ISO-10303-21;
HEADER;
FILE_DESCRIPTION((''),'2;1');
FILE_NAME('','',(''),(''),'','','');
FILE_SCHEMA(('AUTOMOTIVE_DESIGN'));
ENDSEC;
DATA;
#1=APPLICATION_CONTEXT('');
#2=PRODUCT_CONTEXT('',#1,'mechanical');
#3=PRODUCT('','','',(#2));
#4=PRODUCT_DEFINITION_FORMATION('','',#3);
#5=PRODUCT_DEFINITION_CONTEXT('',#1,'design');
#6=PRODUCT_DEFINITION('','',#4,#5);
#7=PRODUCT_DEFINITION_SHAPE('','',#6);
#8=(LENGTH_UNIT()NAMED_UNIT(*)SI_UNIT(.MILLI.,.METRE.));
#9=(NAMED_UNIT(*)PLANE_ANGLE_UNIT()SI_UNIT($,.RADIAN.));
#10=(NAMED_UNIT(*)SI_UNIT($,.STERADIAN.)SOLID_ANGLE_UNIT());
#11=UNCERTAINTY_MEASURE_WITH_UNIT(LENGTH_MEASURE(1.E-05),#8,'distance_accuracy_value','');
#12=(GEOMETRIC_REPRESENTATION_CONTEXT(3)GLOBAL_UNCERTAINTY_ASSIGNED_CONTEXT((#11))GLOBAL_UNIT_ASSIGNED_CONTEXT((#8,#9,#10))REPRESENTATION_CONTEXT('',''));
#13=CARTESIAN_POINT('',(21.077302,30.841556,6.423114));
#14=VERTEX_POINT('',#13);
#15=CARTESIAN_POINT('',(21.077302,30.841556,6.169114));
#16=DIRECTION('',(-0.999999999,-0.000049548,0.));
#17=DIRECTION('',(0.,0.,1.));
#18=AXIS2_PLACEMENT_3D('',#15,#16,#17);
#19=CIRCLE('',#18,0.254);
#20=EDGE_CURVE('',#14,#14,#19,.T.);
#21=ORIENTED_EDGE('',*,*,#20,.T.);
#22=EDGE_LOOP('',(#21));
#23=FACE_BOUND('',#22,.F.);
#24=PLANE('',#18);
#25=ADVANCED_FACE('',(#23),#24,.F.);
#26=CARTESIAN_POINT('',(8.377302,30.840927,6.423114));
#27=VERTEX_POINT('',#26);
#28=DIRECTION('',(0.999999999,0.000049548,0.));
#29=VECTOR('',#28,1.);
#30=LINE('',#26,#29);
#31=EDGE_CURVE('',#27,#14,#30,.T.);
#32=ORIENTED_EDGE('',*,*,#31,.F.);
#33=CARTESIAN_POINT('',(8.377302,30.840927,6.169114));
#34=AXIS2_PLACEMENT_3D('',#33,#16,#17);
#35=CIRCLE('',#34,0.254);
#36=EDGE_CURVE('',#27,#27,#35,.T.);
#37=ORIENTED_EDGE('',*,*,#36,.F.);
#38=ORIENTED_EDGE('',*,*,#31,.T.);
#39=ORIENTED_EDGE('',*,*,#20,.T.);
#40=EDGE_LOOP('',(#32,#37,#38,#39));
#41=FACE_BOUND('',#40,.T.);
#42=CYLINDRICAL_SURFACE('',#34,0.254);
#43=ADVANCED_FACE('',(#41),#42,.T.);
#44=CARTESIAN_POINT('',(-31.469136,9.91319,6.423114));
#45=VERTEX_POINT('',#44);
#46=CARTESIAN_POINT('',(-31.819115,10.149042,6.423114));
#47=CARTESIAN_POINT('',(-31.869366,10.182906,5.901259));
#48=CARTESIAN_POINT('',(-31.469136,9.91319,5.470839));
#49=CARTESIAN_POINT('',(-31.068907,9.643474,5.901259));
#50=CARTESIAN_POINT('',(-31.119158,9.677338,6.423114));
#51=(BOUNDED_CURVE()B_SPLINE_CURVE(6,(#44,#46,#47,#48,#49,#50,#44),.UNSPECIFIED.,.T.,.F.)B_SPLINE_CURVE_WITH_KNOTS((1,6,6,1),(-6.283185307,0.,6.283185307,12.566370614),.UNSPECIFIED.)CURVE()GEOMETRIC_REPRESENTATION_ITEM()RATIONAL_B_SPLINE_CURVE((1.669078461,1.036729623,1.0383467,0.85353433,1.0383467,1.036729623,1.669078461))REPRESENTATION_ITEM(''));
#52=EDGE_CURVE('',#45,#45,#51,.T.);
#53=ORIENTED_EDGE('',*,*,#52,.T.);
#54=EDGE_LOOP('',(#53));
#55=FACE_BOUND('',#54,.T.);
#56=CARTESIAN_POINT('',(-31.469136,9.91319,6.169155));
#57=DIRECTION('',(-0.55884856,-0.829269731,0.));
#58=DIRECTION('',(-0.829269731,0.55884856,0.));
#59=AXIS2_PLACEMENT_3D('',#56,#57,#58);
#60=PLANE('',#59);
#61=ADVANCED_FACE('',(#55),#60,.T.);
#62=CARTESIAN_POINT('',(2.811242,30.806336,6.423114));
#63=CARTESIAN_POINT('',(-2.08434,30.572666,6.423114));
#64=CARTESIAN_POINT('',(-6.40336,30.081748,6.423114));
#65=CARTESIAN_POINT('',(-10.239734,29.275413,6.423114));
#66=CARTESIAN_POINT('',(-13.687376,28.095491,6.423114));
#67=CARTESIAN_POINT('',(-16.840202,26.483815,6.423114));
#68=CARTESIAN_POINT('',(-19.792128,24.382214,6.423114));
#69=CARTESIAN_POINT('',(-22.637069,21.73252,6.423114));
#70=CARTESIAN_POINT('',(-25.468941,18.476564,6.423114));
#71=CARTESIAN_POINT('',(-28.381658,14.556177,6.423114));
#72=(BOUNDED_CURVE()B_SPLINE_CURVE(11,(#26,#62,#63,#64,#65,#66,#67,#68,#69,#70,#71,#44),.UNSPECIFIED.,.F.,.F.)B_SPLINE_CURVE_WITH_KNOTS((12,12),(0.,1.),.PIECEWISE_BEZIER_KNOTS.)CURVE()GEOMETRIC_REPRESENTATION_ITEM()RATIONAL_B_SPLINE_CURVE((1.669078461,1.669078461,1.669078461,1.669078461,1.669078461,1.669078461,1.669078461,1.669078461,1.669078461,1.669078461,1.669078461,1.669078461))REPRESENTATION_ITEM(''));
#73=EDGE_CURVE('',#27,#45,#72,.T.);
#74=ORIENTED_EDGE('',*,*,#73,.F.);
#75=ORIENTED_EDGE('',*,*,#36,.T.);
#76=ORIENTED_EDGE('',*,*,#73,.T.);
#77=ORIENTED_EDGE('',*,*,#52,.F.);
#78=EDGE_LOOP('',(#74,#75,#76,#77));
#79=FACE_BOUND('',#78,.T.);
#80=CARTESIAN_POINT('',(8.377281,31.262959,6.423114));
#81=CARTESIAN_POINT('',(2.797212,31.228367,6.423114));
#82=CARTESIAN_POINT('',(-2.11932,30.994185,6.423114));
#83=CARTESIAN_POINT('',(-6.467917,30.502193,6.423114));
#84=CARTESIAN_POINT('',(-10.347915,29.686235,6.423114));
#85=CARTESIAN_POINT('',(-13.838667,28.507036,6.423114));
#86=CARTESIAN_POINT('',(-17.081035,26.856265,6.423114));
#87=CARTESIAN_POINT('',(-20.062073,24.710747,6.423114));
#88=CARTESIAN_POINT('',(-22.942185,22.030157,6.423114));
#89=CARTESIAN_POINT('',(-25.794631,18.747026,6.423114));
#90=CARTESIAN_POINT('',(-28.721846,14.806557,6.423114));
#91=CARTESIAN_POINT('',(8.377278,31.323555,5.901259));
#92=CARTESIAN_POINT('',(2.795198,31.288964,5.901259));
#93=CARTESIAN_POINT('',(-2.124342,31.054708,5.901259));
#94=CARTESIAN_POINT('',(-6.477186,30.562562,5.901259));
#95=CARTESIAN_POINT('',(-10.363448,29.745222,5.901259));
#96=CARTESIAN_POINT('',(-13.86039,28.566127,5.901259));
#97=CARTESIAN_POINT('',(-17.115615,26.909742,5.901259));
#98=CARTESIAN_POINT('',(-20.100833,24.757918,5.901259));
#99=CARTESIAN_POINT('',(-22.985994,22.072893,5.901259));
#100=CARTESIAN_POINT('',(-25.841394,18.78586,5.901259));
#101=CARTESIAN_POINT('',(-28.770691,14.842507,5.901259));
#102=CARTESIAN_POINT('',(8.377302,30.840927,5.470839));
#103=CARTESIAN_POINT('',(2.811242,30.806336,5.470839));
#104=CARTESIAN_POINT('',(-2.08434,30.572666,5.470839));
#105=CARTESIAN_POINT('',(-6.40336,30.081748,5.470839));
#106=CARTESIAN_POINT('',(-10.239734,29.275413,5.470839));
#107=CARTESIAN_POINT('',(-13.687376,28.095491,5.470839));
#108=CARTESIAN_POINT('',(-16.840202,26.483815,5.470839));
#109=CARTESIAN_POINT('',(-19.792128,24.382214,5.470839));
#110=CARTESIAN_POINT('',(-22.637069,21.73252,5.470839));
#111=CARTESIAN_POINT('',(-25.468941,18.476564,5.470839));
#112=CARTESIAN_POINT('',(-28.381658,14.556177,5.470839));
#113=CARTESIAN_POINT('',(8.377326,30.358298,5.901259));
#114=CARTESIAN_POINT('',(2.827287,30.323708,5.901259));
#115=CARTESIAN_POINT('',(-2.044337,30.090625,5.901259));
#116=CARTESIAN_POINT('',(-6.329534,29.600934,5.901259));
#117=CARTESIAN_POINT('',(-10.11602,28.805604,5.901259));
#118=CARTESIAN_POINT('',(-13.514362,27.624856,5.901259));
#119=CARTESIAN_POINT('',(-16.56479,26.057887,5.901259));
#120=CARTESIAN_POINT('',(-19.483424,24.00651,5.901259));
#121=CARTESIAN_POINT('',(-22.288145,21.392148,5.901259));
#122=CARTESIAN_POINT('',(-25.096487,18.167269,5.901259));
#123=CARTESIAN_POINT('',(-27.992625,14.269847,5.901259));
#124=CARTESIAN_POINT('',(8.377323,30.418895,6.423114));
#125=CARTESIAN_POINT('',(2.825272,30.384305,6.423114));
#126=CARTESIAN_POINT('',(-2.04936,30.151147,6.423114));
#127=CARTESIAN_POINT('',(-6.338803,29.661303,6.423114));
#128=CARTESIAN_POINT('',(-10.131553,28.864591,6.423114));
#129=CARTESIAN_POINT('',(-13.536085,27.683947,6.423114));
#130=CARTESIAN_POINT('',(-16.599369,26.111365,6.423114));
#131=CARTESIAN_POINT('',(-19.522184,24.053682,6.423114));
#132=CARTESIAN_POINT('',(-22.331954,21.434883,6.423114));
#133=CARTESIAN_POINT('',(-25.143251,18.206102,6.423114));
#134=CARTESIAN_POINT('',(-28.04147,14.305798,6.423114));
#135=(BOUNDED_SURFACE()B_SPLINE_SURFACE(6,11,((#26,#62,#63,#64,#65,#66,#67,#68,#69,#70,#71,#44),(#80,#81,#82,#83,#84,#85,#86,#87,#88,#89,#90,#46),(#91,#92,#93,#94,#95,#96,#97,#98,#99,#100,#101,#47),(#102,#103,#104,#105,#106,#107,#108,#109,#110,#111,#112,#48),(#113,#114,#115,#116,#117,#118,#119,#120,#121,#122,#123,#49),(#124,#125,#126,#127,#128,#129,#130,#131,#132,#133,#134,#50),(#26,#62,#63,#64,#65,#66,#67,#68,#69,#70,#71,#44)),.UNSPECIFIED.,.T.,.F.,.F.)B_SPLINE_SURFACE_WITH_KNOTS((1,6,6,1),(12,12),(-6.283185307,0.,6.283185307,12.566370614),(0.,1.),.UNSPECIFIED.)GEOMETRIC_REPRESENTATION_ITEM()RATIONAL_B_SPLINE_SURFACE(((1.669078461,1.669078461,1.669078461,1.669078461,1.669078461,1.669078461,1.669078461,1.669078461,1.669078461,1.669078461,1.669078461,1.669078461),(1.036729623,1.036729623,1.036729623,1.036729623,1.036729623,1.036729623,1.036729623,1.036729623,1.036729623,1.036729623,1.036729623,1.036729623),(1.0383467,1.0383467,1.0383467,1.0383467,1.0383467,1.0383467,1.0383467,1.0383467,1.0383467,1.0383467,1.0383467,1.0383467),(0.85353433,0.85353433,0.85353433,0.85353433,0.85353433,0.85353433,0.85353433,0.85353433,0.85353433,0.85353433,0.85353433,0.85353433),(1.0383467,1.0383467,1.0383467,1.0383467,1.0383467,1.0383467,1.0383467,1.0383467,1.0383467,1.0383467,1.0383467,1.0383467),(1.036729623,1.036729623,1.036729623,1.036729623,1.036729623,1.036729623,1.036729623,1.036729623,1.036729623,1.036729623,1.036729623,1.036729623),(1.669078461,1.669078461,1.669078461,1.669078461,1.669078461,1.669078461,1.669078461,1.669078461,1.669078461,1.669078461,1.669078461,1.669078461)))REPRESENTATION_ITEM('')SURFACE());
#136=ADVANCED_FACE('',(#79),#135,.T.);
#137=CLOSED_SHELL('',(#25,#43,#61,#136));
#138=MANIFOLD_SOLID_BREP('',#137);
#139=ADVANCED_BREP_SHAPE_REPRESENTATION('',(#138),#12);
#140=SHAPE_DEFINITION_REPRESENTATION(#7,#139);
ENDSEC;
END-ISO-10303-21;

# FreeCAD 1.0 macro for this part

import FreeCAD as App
import Part
import Sketcher
from FreeCAD import Vector
Q = App.Units.Quantity

doc = App.newDocument("Part")
body = doc.addObject("PartDesign::Body", "Body")

# Sketch on YZ plane
sketch1 = body.newObject("Sketcher::SketchObject", "Sketch")
sketch1.AttachmentSupport = (doc.getObject("YZ_Plane"), [""])
sketch1.MapMode = "FlatFace"
sketch1.AttachmentOffset = App.Placement(Vector(0, 0, 8.37883), App.Rotation())
sketch1.addGeometry(Part.Circle(Vector(30.840927, 6.169114, 0), Vector(0, 0, 1), 0.254), False)
sketch1.addConstraint([
    Sketcher.Constraint("Diameter", 0, Q("0.02 in")),
    Sketcher.Constraint("DistanceX", -1, 1, 0, 3, 30.840927),
    Sketcher.Constraint("DistanceY", -1, 1, 0, 3, 6.169114),
])
pad1 = body.newObject("PartDesign::Pad", "Pad")
pad1.Profile = sketch1
pad1.Length = Q("0.5 in")

# Sketch on YZ plane
sketch2 = body.newObject("Sketcher::SketchObject", "Sketch001")
sketch2.AttachmentSupport = (doc.getObject("YZ_Plane"), [""])
sketch2.MapMode = "FlatFace"
sketch2.AttachmentOffset = App.Placement(Vector(0, 0, 8.37883), App.Rotation())
sketch2.addGeometry(Part.Circle(Vector(30.840927, 6.169114, 0), Vector(0, 0, 1), 0.254), False)
sketch2.addConstraint([
    Sketcher.Constraint("Diameter", 0, Q("0.02 in")),
    Sketcher.Constraint("DistanceX", -1, 1, 0, 3, 30.840927),
    Sketcher.Constraint("DistanceY", -1, 1, 0, 3, 6.169114),
])

# Sketch on XY plane
sketch3 = body.newObject("Sketcher::SketchObject", "Sketch002")
sketch3.AttachmentSupport = (doc.getObject("XY_Plane"), [""])
sketch3.MapMode = "FlatFace"
sketch3.addGeometry(Part.BSplineCurve([Vector(8.377302, 30.840927, 0), Vector(-12.031583, 30.714094, 0), Vector(-20.148383, 26.937476, 0), Vector(-31.469136, 9.91319, 0)], [4, 4], [0, 1], False, 3, [1, 1, 1, 1], False), False)
sketch3.addConstraint(Sketcher.Constraint("Block", 0))
doc.recompute()

additivepipe = body.newObject("PartDesign::AdditivePipe", "AdditivePipe")
additivepipe.Profile = sketch2
additivepipe.Spine = (sketch3, ["Edge1"])

doc.recompute()
